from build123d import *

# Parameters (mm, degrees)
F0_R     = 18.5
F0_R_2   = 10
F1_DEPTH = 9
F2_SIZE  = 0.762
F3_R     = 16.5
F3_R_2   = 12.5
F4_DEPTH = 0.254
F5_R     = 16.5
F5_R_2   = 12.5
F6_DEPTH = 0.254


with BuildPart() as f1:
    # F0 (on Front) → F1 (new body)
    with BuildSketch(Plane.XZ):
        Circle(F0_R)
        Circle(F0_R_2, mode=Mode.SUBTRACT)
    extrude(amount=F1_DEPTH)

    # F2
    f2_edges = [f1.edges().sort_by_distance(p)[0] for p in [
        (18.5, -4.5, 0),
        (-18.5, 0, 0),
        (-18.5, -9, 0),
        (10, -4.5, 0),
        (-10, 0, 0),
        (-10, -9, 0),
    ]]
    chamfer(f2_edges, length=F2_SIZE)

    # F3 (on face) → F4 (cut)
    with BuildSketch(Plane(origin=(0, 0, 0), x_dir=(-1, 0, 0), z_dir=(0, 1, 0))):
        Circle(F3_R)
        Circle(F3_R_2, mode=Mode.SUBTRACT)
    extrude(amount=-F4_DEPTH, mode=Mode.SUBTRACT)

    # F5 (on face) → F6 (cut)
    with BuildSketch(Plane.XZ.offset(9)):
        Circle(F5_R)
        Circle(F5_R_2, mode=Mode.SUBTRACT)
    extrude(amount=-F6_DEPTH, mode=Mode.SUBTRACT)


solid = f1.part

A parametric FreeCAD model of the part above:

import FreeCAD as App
import Part
import Sketcher
from FreeCAD import Vector

doc = App.newDocument("Part")
body = doc.addObject("PartDesign::Body", "Body")

sketch1 = doc.addObject("Sketcher::SketchObject", "Sketch")
body.addObject(sketch1)
sketch1.AttachmentSupport = (doc.XZ_Plane, [""])
sketch1.MapMode = "FlatFace"
sketch1.addGeometry([
    Part.Circle(Vector(0, 0, 0), Vector(0, 0, 1), 18),
    Part.Circle(Vector(0, 0, 0), Vector(0, 0, 1), 10),
], False)
sketch1.addConstraint([
    Sketcher.Constraint("Coincident", 0, 3, -1, 1),
    Sketcher.Constraint("Coincident", 1, 3, -1, 1),
    Sketcher.Constraint("Diameter", 0, 37.0),
    Sketcher.Constraint("Diameter", 1, 20.0),
])
pad1 = doc.addObject("PartDesign::Pad", "Pad")
body.addObject(pad1)
pad1.Profile = sketch1
pad1.Length = 9
doc.recompute()

chamfer = doc.addObject("PartDesign::Chamfer", "Chamfer")
body.addObject(chamfer)
chamfer.Base = (pad1, ["Edge1"])
chamfer.UseAllEdges = True
chamfer.Size = 0.762

sketch2 = doc.addObject("Sketcher::SketchObject", "Sketch001")
body.addObject(sketch2)
sketch2.AttachmentSupport = (doc.XZ_Plane, [""])
sketch2.MapMode = "FlatFace"
sketch2.addGeometry([
    Part.Circle(Vector(0, 0, 0), Vector(0, 0, 1), 16),
    Part.Circle(Vector(0, 0, 0), Vector(0, 0, 1), 12),
], False)
sketch2.addConstraint([
    Sketcher.Constraint("Coincident", 0, 3, -1, 1),
    Sketcher.Constraint("Coincident", 1, 3, -1, 1),
    Sketcher.Constraint("Diameter", 0, 33.0),
    Sketcher.Constraint("Diameter", 1, 25.0),
])
pocket1 = doc.addObject("PartDesign::Pocket", "Pocket")
body.addObject(pocket1)
pocket1.Profile = sketch2
pocket1.Length = 0.254
pocket1.Reversed = True

sketch3 = doc.addObject("Sketcher::SketchObject", "Sketch002")
body.addObject(sketch3)
sketch3.AttachmentSupport = (doc.XZ_Plane, [""])
sketch3.MapMode = "FlatFace"
sketch3.AttachmentOffset = App.Placement(Vector(0, 0, 9), App.Rotation())
sketch3.addGeometry([
    Part.Circle(Vector(0, 0, 0), Vector(0, 0, 1), 16),
    Part.Circle(Vector(0, 0, 0), Vector(0, 0, 1), 12),
], False)
sketch3.addConstraint([
    Sketcher.Constraint("Coincident", 0, 3, -1, 1),
    Sketcher.Constraint("Coincident", 1, 3, -1, 1),
    Sketcher.Constraint("Diameter", 0, 33.0),
    Sketcher.Constraint("Diameter", 1, 25.0),
])
pocket2 = doc.addObject("PartDesign::Pocket", "Pocket001")
body.addObject(pocket2)
pocket2.Profile = sketch3
pocket2.Length = 0.254

doc.recompute()
